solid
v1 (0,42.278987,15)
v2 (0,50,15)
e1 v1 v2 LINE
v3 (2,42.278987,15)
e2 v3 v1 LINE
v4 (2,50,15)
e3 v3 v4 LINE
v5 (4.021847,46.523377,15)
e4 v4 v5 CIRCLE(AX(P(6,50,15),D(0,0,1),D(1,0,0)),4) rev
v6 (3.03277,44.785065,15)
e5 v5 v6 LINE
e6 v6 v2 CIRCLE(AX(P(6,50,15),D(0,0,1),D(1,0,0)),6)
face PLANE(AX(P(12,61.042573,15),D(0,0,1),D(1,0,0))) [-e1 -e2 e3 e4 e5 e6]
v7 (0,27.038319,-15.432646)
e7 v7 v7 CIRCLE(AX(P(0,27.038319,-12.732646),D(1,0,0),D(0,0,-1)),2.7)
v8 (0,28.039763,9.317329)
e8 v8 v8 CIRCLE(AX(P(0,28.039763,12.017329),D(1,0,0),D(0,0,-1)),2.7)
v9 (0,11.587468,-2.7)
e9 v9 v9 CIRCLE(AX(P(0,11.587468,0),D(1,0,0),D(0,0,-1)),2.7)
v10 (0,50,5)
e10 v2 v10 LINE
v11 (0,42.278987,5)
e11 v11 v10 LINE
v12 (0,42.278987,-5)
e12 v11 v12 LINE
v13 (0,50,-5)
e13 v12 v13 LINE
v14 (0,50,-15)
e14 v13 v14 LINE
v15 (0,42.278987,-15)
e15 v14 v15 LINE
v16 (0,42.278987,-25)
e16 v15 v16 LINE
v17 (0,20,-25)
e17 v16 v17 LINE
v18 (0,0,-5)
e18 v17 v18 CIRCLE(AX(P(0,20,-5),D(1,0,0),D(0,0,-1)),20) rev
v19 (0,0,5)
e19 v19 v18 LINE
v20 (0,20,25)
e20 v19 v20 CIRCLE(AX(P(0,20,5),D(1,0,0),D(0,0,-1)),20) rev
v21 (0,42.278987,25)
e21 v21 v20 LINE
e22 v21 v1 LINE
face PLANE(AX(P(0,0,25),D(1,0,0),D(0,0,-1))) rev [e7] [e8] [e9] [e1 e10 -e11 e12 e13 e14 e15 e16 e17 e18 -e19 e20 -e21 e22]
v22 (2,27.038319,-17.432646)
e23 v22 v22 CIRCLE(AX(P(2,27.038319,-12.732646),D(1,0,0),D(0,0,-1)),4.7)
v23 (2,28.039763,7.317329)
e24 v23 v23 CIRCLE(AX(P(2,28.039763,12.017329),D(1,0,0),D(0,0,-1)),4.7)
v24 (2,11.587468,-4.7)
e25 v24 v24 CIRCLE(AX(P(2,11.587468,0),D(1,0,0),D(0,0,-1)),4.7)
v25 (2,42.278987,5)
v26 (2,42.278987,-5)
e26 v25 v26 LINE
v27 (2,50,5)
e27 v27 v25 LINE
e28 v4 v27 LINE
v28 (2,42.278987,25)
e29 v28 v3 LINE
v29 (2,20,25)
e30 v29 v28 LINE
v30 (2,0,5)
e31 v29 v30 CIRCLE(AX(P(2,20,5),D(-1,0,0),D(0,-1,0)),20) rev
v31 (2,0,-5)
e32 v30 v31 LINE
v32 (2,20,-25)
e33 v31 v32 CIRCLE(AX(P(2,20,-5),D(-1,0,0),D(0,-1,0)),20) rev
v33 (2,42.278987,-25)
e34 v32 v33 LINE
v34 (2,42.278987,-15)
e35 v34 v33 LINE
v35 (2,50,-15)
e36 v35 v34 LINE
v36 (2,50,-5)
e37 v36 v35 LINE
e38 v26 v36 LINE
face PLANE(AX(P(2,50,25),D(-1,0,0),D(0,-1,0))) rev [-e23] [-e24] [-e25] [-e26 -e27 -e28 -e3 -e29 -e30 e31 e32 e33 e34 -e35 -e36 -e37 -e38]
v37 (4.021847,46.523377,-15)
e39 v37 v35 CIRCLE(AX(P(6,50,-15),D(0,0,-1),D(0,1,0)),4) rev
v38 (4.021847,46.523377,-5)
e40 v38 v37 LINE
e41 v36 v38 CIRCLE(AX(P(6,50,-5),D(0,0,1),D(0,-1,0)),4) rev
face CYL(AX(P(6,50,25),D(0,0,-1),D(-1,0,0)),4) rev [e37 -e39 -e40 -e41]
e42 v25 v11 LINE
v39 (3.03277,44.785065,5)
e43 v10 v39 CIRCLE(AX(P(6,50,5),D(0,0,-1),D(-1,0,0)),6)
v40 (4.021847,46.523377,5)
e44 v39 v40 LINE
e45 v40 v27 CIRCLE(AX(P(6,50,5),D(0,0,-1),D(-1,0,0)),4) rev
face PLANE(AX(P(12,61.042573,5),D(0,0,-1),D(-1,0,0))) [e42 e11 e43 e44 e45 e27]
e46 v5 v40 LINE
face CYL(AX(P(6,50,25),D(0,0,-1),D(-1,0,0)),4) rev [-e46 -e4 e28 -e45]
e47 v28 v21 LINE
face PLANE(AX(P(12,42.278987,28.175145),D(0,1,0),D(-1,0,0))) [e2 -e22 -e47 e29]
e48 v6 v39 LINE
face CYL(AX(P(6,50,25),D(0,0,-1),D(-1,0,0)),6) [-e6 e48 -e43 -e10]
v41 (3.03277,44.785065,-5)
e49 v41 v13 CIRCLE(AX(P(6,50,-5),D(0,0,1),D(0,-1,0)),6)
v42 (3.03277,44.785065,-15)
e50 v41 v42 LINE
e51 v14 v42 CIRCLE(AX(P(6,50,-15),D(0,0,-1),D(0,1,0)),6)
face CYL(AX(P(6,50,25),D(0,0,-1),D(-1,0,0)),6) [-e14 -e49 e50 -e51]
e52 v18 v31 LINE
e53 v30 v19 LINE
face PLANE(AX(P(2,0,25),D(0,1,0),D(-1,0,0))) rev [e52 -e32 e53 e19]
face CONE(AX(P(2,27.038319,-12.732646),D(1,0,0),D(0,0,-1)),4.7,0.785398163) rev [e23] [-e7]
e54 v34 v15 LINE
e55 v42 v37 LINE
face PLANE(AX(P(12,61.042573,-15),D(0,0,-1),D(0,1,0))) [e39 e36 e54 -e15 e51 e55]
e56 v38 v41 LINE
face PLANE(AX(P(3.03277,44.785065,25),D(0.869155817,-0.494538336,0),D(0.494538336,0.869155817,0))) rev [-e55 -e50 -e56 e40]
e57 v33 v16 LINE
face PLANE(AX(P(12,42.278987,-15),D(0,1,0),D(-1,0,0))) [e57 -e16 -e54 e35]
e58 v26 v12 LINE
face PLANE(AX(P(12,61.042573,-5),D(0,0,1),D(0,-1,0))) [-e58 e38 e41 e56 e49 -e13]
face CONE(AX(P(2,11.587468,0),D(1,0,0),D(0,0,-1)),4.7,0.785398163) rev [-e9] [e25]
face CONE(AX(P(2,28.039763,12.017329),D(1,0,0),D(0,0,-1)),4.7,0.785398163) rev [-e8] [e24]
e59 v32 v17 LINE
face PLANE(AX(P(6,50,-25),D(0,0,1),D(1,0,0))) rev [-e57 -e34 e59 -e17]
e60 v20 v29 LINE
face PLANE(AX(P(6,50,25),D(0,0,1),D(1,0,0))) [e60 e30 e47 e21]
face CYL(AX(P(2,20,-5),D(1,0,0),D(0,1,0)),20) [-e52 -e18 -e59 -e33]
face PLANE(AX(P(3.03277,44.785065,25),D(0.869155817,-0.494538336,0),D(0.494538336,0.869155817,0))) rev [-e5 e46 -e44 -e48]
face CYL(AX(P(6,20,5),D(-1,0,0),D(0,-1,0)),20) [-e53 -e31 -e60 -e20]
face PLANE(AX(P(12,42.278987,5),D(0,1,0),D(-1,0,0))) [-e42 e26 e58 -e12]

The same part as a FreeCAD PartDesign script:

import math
import FreeCAD as App
import Part
import Sketcher
from FreeCAD import Vector
Q = App.Units.Quantity


def edges_at(feature, points):
    """Names of the edges that pass closest to the given points."""
    edges = feature.Shape.Edges
    near = lambda p: min(range(len(edges)), key=lambda i: edges[i].distToShape(Part.Vertex(*p))[0])
    return sorted({f"Edge{near(p) + 1}" for p in points})

doc = App.newDocument("Part")
params = doc.addObject("Spreadsheet::Sheet", "Params")
for row, (alias, value) in enumerate([
    ("sketch1_radius", "4 mm"),
    ("sketch1_radius2", "6 mm"),
    ("sketch1_height", "50 mm"),
    ("pad1_length", "50 mm"),
    ("sketch2_height", "10 mm"),
    ("fillet_radius", "20 mm"),
    ("sketch3_width", "2 mm"),
    ("sketch3_height", "4.7 mm"),
    ("sketch3_width2", "0.45 mm"),
    ("groove_angle", "360 deg"),
    ("linearpattern_pitch", "20.373861 mm"),
    ("linearpattern2_pitch", "20.021215 mm"),
], start=1):
    params.set(f"A{row}", alias)
    params.set(f"B{row}", "=" + value)
    params.setAlias(f"B{row}", alias)

body = doc.addObject("PartDesign::Body", "Body")

sketch1 = body.newObject("Sketcher::SketchObject", "Sketch")
sketch1.AttachmentSupport = (doc.getObject("XY_Plane"), [""])
sketch1.MapMode = "FlatFace"
sketch1.addGeometry([
    Part.LineSegment(Vector(0, 50, 0), Vector(0, 0, 0)),
    Part.LineSegment(Vector(0, 0, 0), Vector(2, 0, 0)),
    Part.LineSegment(Vector(2, 0, 0), Vector(2, 50, 0)),
    Part.ArcOfCircle(Part.Circle(Vector(6, 50, 0), Vector(0, 0, 1), 4), math.radians(-120), math.radians(180)),
    Part.LineSegment(Vector(4, 46.5, 0), Vector(3, 44.8, 0)),
    Part.ArcOfCircle(Part.Circle(Vector(6, 50, 0), Vector(0, 0, 1), 6), math.radians(-120), math.radians(180)),
], False)
sketch1.addConstraint([
    Sketcher.Constraint("Coincident", 0, 2, 1, 1),
    Sketcher.Constraint("Coincident", 1, 2, 2, 1),
    Sketcher.Constraint("Tangent", 2, 2, 3, 2),
    Sketcher.Constraint("Coincident", 3, 1, 4, 1),
    Sketcher.Constraint("Coincident", 4, 2, 5, 1),
    Sketcher.Constraint("Tangent", 5, 2, 0, 1),
    Sketcher.Constraint("Vertical", 0),
    Sketcher.Constraint("Horizontal", 1),
    Sketcher.Constraint("Vertical", 2),
    Sketcher.Constraint("Coincident", 0, 2, -1, 1),
    Sketcher.Constraint("Coincident", 5, 3, 3, 3),
    Sketcher.Constraint("Radius", 3, 4.0),
    Sketcher.Constraint("Radius", 5, 6.0),
    Sketcher.Constraint("DistanceY", 0, 2, 0, 1, 50.0),
    Sketcher.Constraint("DistanceX", -1, 1, 4, 2, 3.03277),
    Sketcher.Constraint("DistanceY", 4, 2, 3, 1, 1.738312),
])
sketch1.setExpression("Constraints[11]", "Params.sketch1_radius")
sketch1.setExpression("Constraints[12]", "Params.sketch1_radius2")
sketch1.setExpression("Constraints[13]", "Params.sketch1_height")
pad1 = body.newObject("PartDesign::Pad", "Pad")
pad1.Profile = sketch1
pad1.setExpression("Length", "Params.pad1_length")
pad1.Midplane = True

sketch2 = body.newObject("Sketcher::SketchObject", "Sketch001")
sketch2.AttachmentSupport = (doc.getObject("YZ_Plane"), [""])
sketch2.MapMode = "FlatFace"
sketch2.AttachmentOffset = App.Placement(Vector(0, 0, 2), App.Rotation())
sketch2.addGeometry([
    Part.LineSegment(Vector(61, 28, 0), Vector(42, 28, 0)),
    Part.LineSegment(Vector(42, 28, 0), Vector(42, 15, 0)),
    Part.LineSegment(Vector(42, 15, 0), Vector(61, 15, 0)),
    Part.LineSegment(Vector(61, 15, 0), Vector(61, 28, 0)),
    Part.LineSegment(Vector(61, 5, 0), Vector(42, 5, 0)),
    Part.LineSegment(Vector(42, 5, 0), Vector(42, -5, 0)),
    Part.LineSegment(Vector(42, -5, 0), Vector(61, -5, 0)),
    Part.LineSegment(Vector(61, -5, 0), Vector(61, 5, 0)),
    Part.LineSegment(Vector(61, -15, 0), Vector(42, -15, 0)),
    Part.LineSegment(Vector(42, -15, 0), Vector(42, -35, 0)),
    Part.LineSegment(Vector(42, -35, 0), Vector(61, -35, 0)),
    Part.LineSegment(Vector(61, -35, 0), Vector(61, -15, 0)),
], False)
sketch2.addConstraint([
    Sketcher.Constraint("Coincident", 0, 2, 1, 1),
    Sketcher.Constraint("Coincident", 1, 2, 2, 1),
    Sketcher.Constraint("Coincident", 2, 2, 3, 1),
    Sketcher.Constraint("Coincident", 3, 2, 0, 1),
    Sketcher.Constraint("Coincident", 4, 2, 5, 1),
    Sketcher.Constraint("Coincident", 5, 2, 6, 1),
    Sketcher.Constraint("Coincident", 6, 2, 7, 1),
    Sketcher.Constraint("Coincident", 7, 2, 4, 1),
    Sketcher.Constraint("Coincident", 8, 2, 9, 1),
    Sketcher.Constraint("Coincident", 9, 2, 10, 1),
    Sketcher.Constraint("Coincident", 10, 2, 11, 1),
    Sketcher.Constraint("Coincident", 11, 2, 8, 1),
    Sketcher.Constraint("Horizontal", 0),
    Sketcher.Constraint("Vertical", 1),
    Sketcher.Constraint("Horizontal", 2),
    Sketcher.Constraint("Vertical", 3),
    Sketcher.Constraint("Horizontal", 4),
    Sketcher.Constraint("Vertical", 5),
    Sketcher.Constraint("Horizontal", 6),
    Sketcher.Constraint("Vertical", 7),
    Sketcher.Constraint("Horizontal", 8),
    Sketcher.Constraint("Vertical", 9),
    Sketcher.Constraint("Horizontal", 10),
    Sketcher.Constraint("Vertical", 11),
    Sketcher.Constraint("Symmetric", 1, 2, 8, 2, -1),
    Sketcher.Constraint("Vertical", 1, 2, 4, 2),
    Sketcher.Constraint("Vertical", 3, 2, 6, 2),
    Sketcher.Constraint("Vertical", 7, 2, 10, 2),
    Sketcher.Constraint("DistanceY", 5, 2, 5, 1, 10.0),
    Sketcher.Constraint("DistanceY", -1, 1, 1, 2, 15.0),
    Sketcher.Constraint("DistanceY", -1, 1, 4, 2, 5.0),
    Sketcher.Constraint("DistanceX", 0, 2, 0, 1, 18.763587),
    Sketcher.Constraint("DistanceY", 1, 2, 1, 1, 13.175145),
    Sketcher.Constraint("DistanceY", 9, 2, 9, 1, 19.622994),
    Sketcher.Constraint("DistanceX", -1, 1, 0, 2, 42.278987),
])
sketch2.setExpression("Constraints[28]", "Params.sketch2_height")
pocket1 = body.newObject("PartDesign::Pocket", "Pocket")
pocket1.Profile = sketch2
pocket1.Type = "ThroughAll"
pocket1.Midplane = True
doc.recompute()

fillet = body.newObject("PartDesign::Fillet", "Fillet")
fillet.Base = (pocket1, edges_at(pocket1, [(1, 0, 25), (1, 0, -25)]))
fillet.setExpression("Radius", "Params.fillet_radius")

sketch3 = body.newObject("Sketcher::SketchObject", "Sketch002")
sketch3.AttachmentSupport = (doc.getObject("XZ_Plane"), [""])
sketch3.MapMode = "FlatFace"
sketch3.AttachmentOffset = App.Placement(Vector(0, 0, -11.587468), App.Rotation())
sketch3.addGeometry([
    Part.LineSegment(Vector(0, 0, 0), Vector(2, 0, 0)),
    Part.LineSegment(Vector(2, 0, 0), Vector(2, -4.7, 0)),
    Part.LineSegment(Vector(2, -4.7, 0), Vector(-0.45, -2.25, 0)),
    Part.LineSegment(Vector(-0.45, -2.25, 0), Vector(0, -2.25, 0)),
    Part.LineSegment(Vector(0, -2.25, 0), Vector(0, 0, 0)),
], False)
sketch3.addConstraint([
    Sketcher.Constraint("Coincident", 0, 2, 1, 1),
    Sketcher.Constraint("Coincident", 1, 2, 2, 1),
    Sketcher.Constraint("Coincident", 2, 2, 3, 1),
    Sketcher.Constraint("Coincident", 3, 2, 4, 1),
    Sketcher.Constraint("Coincident", 4, 2, 0, 1),
    Sketcher.Constraint("Horizontal", 0),
    Sketcher.Constraint("Vertical", 1),
    Sketcher.Constraint("Horizontal", 3),
    Sketcher.Constraint("Vertical", 4),
    Sketcher.Constraint("Coincident", 4, 2, -1, 1),
    Sketcher.Constraint("DistanceX", 0, 1, 0, 2, 2.0),
    Sketcher.Constraint("Angle", 2, Q("135 deg")),
    Sketcher.Constraint("DistanceY", 1, 2, 1, 1, 4.7),
    Sketcher.Constraint("DistanceX", 3, 1, 3, 2, 0.45),
])
sketch3.setExpression("Constraints[10]", "Params.sketch3_width")
sketch3.setExpression("Constraints[12]", "Params.sketch3_height")
sketch3.setExpression("Constraints[13]", "Params.sketch3_width2")
groove = body.newObject("PartDesign::Groove", "Groove")
groove.Profile = sketch3
groove.ReferenceAxis = (sketch3, ["H_Axis"])
groove.setExpression("Angle", "Params.groove_angle")
doc.recompute()

datumline = body.newObject("PartDesign::Line", "DatumLine")
datumline.Placement = App.Placement(Vector(0, 0, 0), App.Rotation(Vector(0, 0, 1), Vector(0, 0.807519759, 0.58984052)))
linearpattern = body.newObject("PartDesign::LinearPattern", "LinearPattern")
linearpattern.Originals = [groove]
linearpattern.Direction = (datumline, [""])
linearpattern.Mode = "offset"
linearpattern.setExpression("Offset", "Params.linearpattern_pitch")
linearpattern.Occurrences = 2
body.Tip = linearpattern
doc.recompute()

datumline2 = body.newObject("PartDesign::Line", "DatumLine001")
datumline2.Placement = App.Placement(Vector(0, 0, 0), App.Rotation(Vector(0, 0, 1), Vector(0, 0.771723931, -0.635957683)))
linearpattern2 = body.newObject("PartDesign::LinearPattern", "LinearPattern001")
linearpattern2.Originals = [groove]
linearpattern2.Direction = (datumline2, [""])
linearpattern2.Mode = "offset"
linearpattern2.setExpression("Offset", "Params.linearpattern2_pitch")
linearpattern2.Occurrences = 2
body.Tip = linearpattern2

doc.recompute()
